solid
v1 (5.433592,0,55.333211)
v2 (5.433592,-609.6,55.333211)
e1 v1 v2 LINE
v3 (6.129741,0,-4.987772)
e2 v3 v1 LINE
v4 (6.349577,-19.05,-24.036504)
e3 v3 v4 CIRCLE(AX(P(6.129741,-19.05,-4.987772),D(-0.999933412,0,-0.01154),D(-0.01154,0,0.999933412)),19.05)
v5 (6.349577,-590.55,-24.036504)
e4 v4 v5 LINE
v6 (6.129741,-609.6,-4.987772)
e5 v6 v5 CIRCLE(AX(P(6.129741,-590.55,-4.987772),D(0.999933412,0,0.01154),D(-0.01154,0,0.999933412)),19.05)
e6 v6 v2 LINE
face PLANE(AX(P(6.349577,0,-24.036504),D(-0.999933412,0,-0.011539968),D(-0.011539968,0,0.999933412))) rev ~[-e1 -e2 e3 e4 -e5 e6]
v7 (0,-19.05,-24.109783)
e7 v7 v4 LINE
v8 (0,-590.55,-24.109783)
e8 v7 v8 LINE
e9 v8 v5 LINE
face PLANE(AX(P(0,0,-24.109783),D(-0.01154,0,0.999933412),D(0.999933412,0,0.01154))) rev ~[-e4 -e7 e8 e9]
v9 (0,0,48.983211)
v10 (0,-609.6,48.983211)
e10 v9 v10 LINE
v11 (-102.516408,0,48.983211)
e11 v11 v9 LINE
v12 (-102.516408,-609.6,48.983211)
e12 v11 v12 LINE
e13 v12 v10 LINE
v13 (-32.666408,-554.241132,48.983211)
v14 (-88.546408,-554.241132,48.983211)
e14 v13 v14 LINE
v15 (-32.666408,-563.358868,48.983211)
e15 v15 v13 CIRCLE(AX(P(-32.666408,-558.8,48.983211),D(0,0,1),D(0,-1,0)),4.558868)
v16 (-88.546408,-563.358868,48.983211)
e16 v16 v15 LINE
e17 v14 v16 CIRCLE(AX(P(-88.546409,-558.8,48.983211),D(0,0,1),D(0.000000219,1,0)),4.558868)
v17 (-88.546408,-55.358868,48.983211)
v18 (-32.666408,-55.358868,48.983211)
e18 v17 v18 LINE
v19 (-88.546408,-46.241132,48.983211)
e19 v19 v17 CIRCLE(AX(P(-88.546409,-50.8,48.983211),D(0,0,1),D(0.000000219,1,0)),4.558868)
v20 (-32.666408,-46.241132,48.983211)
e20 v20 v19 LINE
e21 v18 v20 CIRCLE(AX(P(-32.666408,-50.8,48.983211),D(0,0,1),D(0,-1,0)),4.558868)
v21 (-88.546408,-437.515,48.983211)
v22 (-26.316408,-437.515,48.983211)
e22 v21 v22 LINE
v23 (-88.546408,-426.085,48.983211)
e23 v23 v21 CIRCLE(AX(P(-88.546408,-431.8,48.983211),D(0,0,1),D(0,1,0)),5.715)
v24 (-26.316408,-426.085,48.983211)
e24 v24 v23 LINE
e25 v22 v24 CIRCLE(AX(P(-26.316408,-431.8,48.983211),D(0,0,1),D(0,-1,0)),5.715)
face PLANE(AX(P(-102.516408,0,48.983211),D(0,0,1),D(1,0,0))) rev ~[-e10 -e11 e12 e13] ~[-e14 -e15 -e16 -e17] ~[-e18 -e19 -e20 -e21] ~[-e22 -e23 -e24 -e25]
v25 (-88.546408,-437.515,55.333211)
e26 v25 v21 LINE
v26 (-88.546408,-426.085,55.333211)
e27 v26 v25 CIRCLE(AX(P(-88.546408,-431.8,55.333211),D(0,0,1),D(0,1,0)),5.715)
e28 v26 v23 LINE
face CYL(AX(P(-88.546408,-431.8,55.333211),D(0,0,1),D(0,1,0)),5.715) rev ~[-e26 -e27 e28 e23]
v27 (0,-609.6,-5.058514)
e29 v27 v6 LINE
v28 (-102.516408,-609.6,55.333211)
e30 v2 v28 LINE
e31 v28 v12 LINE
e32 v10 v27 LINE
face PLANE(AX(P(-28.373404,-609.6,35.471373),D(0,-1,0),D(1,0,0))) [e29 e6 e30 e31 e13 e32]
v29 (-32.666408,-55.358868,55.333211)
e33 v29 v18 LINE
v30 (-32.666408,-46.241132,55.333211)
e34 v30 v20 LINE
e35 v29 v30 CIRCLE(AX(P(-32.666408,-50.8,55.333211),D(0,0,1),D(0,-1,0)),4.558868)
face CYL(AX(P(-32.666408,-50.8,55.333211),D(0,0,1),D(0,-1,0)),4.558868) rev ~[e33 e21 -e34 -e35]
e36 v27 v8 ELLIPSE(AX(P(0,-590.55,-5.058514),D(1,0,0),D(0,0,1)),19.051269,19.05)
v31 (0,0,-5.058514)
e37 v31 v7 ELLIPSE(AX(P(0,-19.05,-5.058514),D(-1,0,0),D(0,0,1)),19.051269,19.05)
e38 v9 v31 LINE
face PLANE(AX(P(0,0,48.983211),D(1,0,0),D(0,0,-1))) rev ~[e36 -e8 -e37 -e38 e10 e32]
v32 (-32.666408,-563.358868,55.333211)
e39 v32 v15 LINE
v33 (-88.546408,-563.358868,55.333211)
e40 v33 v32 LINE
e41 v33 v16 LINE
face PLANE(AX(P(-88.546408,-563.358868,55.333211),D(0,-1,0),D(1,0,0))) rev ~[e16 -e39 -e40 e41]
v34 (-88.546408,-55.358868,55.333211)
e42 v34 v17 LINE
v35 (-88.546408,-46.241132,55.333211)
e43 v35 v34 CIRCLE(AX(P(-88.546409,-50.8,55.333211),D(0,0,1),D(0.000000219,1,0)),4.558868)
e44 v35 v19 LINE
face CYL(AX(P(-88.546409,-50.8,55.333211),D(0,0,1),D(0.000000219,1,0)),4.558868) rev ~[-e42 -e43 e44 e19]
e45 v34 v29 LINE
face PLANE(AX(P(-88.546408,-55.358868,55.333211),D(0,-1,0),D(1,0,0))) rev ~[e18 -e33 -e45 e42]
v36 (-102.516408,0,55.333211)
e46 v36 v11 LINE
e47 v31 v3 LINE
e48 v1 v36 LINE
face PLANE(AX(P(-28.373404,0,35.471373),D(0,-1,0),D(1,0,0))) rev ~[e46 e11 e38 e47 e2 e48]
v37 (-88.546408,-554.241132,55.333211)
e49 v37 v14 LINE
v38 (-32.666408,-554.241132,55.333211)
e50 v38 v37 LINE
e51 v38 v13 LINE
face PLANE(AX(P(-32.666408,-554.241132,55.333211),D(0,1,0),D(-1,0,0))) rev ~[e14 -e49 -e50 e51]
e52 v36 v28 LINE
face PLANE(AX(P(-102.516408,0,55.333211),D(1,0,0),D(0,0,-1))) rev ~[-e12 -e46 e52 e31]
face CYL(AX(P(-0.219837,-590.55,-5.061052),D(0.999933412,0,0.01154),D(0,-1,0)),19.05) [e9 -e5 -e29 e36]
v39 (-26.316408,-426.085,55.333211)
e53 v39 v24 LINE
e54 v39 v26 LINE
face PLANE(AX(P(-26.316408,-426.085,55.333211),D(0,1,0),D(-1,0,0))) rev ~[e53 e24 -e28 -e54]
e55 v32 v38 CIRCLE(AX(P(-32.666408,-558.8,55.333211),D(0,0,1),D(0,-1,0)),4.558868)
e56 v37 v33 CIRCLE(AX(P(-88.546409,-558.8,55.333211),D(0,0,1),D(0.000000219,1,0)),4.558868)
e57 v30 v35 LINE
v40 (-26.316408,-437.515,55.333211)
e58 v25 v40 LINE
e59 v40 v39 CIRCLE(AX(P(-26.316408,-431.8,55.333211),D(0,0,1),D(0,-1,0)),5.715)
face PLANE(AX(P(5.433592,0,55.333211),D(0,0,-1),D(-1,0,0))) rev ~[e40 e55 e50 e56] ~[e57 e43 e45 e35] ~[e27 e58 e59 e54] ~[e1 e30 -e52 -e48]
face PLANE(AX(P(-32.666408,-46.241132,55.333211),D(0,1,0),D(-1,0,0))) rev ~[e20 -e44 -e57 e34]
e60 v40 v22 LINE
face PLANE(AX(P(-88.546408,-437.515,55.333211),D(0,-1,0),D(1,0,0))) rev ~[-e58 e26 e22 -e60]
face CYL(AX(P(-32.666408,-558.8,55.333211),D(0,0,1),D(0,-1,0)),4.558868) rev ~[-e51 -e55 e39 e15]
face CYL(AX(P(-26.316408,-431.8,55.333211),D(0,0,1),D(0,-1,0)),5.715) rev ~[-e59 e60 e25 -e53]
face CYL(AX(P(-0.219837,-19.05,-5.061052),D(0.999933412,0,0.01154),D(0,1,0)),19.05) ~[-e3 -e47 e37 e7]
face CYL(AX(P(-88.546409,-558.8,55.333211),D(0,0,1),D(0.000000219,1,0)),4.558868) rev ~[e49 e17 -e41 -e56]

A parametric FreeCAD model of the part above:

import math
import FreeCAD as App
import Part
import Sketcher
from FreeCAD import Vector
Q = App.Units.Quantity


def edges_at(feature, points):
    """Names of the edges that pass closest to the given points."""
    edges = feature.Shape.Edges
    near = lambda p: min(range(len(edges)), key=lambda i: edges[i].distToShape(Part.Vertex(*p))[0])
    return sorted({f"Edge{near(p) + 1}" for p in points})

doc = App.newDocument("Part")
body = doc.addObject("PartDesign::Body", "Body")

sketch1 = body.newObject("Sketcher::SketchObject", "Sketch")
sketch1.AttachmentSupport = (doc.getObject("XZ_Plane"), [""])
sketch1.MapMode = "FlatFace"
sketch1.addGeometry(Part.LineSegment(Vector(5, 55, 0), Vector(-103, 55, 0)), False)
sketch1.addGeometry(Part.LineSegment(Vector(-103, 55, 0), Vector(-103, 49, 0)), False)
sketch1.addGeometry(Part.LineSegment(Vector(-103, 49, 0), Vector(0, 49, 0)), False)
sketch1.addGeometry(Part.LineSegment(Vector(0, 49, 0), Vector(0, -24, 0)), False)
sketch1.addGeometry(Part.LineSegment(Vector(0, -24, 0), Vector(6, -24, 0)), False)
sketch1.addGeometry(Part.LineSegment(Vector(6, -24, 0), Vector(5, 55, 0)), False)
sketch1.addConstraint(Sketcher.Constraint("Coincident", 0, 2, 1, 1))
sketch1.addConstraint(Sketcher.Constraint("Coincident", 1, 2, 2, 1))
sketch1.addConstraint(Sketcher.Constraint("Coincident", 2, 2, 3, 1))
sketch1.addConstraint(Sketcher.Constraint("Coincident", 3, 2, 4, 1))
sketch1.addConstraint(Sketcher.Constraint("Coincident", 4, 2, 5, 1))
sketch1.addConstraint(Sketcher.Constraint("Coincident", 5, 2, 0, 1))
sketch1.addConstraint(Sketcher.Constraint("Horizontal", 0))
sketch1.addConstraint(Sketcher.Constraint("Vertical", 1))
sketch1.addConstraint(Sketcher.Constraint("Horizontal", 2))
sketch1.addConstraint(Sketcher.Constraint("Vertical", 3))
sketch1.addConstraint(Sketcher.Constraint("PointOnObject", 2, 2, -2))
sketch1.addConstraint(Sketcher.Constraint("Perpendicular", 4, 5))
sketch1.addConstraint(Sketcher.Constraint("DistanceX", 0, 2, 0, 1, Q("4.25 in")))
sketch1.addConstraint(Sketcher.Constraint("DistanceY", 1, 2, 1, 1, Q("0.25 in")))
sketch1.addConstraint(Sketcher.Constraint("Distance", 4, Q("0.25 in")))
sketch1.addConstraint(Sketcher.Constraint("Distance", 5, Q("3.125 in")))
sketch1.addConstraint(Sketcher.Constraint("DistanceX", 2, 1, 2, 2, 102.516408))
sketch1.addConstraint(Sketcher.Constraint("DistanceY", -1, 1, 0, 2, 55.333211))
pad1 = body.newObject("PartDesign::Pad", "Pad")
pad1.Profile = sketch1
pad1.Length = Q("24 in")

sketch2 = body.newObject("Sketcher::SketchObject", "Sketch001")
sketch2.AttachmentSupport = (doc.getObject("XY_Plane"), [""])
sketch2.MapMode = "FlatFace"
sketch2.AttachmentOffset = App.Placement(Vector(0, 0, 55.333211), App.Rotation())
sketch2.addGeometry(Part.LineSegment(Vector(-32.7, -46.2, 0), Vector(-88.5, -46.2, 0)), False)
sketch2.addGeometry(Part.ArcOfCircle(Part.Circle(Vector(-88.5, -50.8, 0), Vector(0, 0, 1), 4.6), math.radians(90), math.radians(270)), False)
sketch2.addGeometry(Part.LineSegment(Vector(-88.5, -55.4, 0), Vector(-32.7, -55.4, 0)), False)
sketch2.addGeometry(Part.ArcOfCircle(Part.Circle(Vector(-32.7, -50.8, 0), Vector(0, 0, 1), 4.6), math.radians(-90), math.radians(90)), False)
sketch2.addGeometry(Part.LineSegment(Vector(-32.7, -554.2, 0), Vector(-88.5, -554.2, 0)), False)
sketch2.addGeometry(Part.ArcOfCircle(Part.Circle(Vector(-88.5, -558.8, 0), Vector(0, 0, 1), 4.6), math.radians(90), math.radians(270)), False)
sketch2.addGeometry(Part.LineSegment(Vector(-88.5, -563.4, 0), Vector(-32.7, -563.4, 0)), False)
sketch2.addGeometry(Part.ArcOfCircle(Part.Circle(Vector(-32.7, -558.8, 0), Vector(0, 0, 1), 4.6), math.radians(-90), math.radians(90)), False)
sketch2.addConstraint(Sketcher.Constraint("Tangent", 0, 2, 1, 1))
sketch2.addConstraint(Sketcher.Constraint("Tangent", 1, 2, 2, 1))
sketch2.addConstraint(Sketcher.Constraint("Tangent", 2, 2, 3, 1))
sketch2.addConstraint(Sketcher.Constraint("Tangent", 3, 2, 0, 1))
sketch2.addConstraint(Sketcher.Constraint("Tangent", 4, 2, 5, 1))
sketch2.addConstraint(Sketcher.Constraint("Tangent", 5, 2, 6, 1))
sketch2.addConstraint(Sketcher.Constraint("Tangent", 6, 2, 7, 1))
sketch2.addConstraint(Sketcher.Constraint("Tangent", 7, 2, 4, 1))
sketch2.addConstraint(Sketcher.Constraint("Horizontal", 0))
sketch2.addConstraint(Sketcher.Constraint("Horizontal", 2))
sketch2.addConstraint(Sketcher.Constraint("Horizontal", 4))
sketch2.addConstraint(Sketcher.Constraint("Horizontal", 6))
sketch2.addConstraint(Sketcher.Constraint("Equal", 3, 5))
sketch2.addConstraint(Sketcher.Constraint("Vertical", 1, 3, 5, 3))
sketch2.addConstraint(Sketcher.Constraint("Vertical", 3, 3, 7, 3))
sketch2.addConstraint(Sketcher.Constraint("DistanceX", 0, 2, 0, 1, Q("2.2 in")))
sketch2.addConstraint(Sketcher.Constraint("DistanceY", 1, 3, -1, 1, Q("2 in")))
sketch2.addConstraint(Sketcher.Constraint("DistanceY", 5, 3, -1, 1, Q("22 in")))
sketch2.addConstraint(Sketcher.Constraint("Radius", 1, 4.558868))
sketch2.addConstraint(Sketcher.Constraint("DistanceX", 1, 3, -1, 1, 88.546409))
pocket1 = body.newObject("PartDesign::Pocket", "Pocket")
pocket1.Profile = sketch2
pocket1.Type = "ThroughAll"

sketch3 = body.newObject("Sketcher::SketchObject", "Sketch002")
sketch3.AttachmentSupport = (doc.getObject("XY_Plane"), [""])
sketch3.MapMode = "FlatFace"
sketch3.AttachmentOffset = App.Placement(Vector(0, 0, 55.333211), App.Rotation())
sketch3.addGeometry(Part.LineSegment(Vector(-26, -426, 0), Vector(-89, -426, 0)), False)
sketch3.addGeometry(Part.ArcOfCircle(Part.Circle(Vector(-89, -432, 0), Vector(0, 0, 1), 6), math.radians(90), math.radians(270)), False)
sketch3.addGeometry(Part.LineSegment(Vector(-89, -438, 0), Vector(-26, -438, 0)), False)
sketch3.addGeometry(Part.ArcOfCircle(Part.Circle(Vector(-26, -432, 0), Vector(0, 0, 1), 6), math.radians(-90), math.radians(90)), False)
sketch3.addConstraint(Sketcher.Constraint("Tangent", 0, 2, 1, 1))
sketch3.addConstraint(Sketcher.Constraint("Tangent", 1, 2, 2, 1))
sketch3.addConstraint(Sketcher.Constraint("Tangent", 2, 2, 3, 1))
sketch3.addConstraint(Sketcher.Constraint("Tangent", 3, 2, 0, 1))
sketch3.addConstraint(Sketcher.Constraint("Horizontal", 0))
sketch3.addConstraint(Sketcher.Constraint("Horizontal", 2))
sketch3.addConstraint(Sketcher.Constraint("DistanceY", 1, 3, -1, 1, Q("17 in")))
sketch3.addConstraint(Sketcher.Constraint("Radius", 1, Q("0.225 in")))
sketch3.addConstraint(Sketcher.Constraint("DistanceX", 0, 2, 0, 1, Q("2.45 in")))
sketch3.addConstraint(Sketcher.Constraint("DistanceX", 1, 3, -1, 1, 88.546408))
pocket2 = body.newObject("PartDesign::Pocket", "Pocket001")
pocket2.Profile = sketch3
pocket2.Type = "ThroughAll"
doc.recompute()

fillet = body.newObject("PartDesign::Fillet", "Fillet")
fillet.Base = (pocket2, edges_at(pocket2, [(3.175, -609.6, -24.073), (3.175, 0, -24.073)]))
fillet.Radius = Q("0.75 in")

doc.recompute()
